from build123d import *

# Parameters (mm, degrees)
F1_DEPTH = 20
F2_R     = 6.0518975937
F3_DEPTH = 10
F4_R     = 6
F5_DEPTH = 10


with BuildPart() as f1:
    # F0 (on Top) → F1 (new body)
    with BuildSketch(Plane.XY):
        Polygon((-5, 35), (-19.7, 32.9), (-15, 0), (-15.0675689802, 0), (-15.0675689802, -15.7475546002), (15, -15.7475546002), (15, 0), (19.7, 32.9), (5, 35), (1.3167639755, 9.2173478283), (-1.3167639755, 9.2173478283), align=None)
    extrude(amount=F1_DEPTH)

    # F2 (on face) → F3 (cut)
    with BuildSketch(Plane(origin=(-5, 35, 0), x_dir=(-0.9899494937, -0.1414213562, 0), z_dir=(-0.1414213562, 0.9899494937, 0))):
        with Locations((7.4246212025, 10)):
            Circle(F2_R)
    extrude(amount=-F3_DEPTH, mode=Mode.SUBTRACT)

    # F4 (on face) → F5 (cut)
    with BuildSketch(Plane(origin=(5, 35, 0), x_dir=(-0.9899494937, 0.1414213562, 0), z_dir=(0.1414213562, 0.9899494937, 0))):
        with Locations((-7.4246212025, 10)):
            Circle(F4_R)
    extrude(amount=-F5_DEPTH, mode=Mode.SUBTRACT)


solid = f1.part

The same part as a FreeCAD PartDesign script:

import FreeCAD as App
import Part
import Sketcher
from FreeCAD import Vector


def add_polygon(sketch, points):
    """Adds a closed chain of lines whose ends are joined by coincident constraints."""
    first, n = sketch.GeometryCount, len(points)
    for a, b in zip(points, points[1:] + points[:1]):
        sketch.addGeometry(Part.LineSegment(App.Vector(*a, 0), App.Vector(*b, 0)), False)
    for i in range(n):
        sketch.addConstraint(Sketcher.Constraint("Coincident", first + i, 2, first + (i + 1) % n, 1))

doc = App.newDocument("Part")
params = doc.addObject("Spreadsheet::Sheet", "Params")
for row, (alias, value) in enumerate([
    ("pad1_length", "20 mm"),
    ("pocket1_length", "10 mm"),
    ("sketch3_diameter", "12 mm"),
    ("pocket2_length", "10 mm"),
], start=1):
    params.set(f"A{row}", alias)
    params.set(f"B{row}", "=" + value)
    params.setAlias(f"B{row}", alias)

body = doc.addObject("PartDesign::Body", "Body")

# Sketch on XY plane
sketch1 = doc.addObject("Sketcher::SketchObject", "Sketch")
body.addObject(sketch1)
sketch1.AttachmentSupport = (doc.XY_Plane, [""])
sketch1.MapMode = "FlatFace"
add_polygon(sketch1, [(-5, 35), (-19.7, 32.9), (-15, 0), (-15.07, 0), (-15.07, -15.75), (15, -15.75), (15, 0), (19.7, 32.9), (5, 35), (1.32, 9.22), (-1.32, 9.22)])  # lines 0-10
sketch1.addConstraint(Sketcher.Constraint("Horizontal", 2))
sketch1.addConstraint(Sketcher.Constraint("Vertical", 3))
sketch1.addConstraint(Sketcher.Constraint("Horizontal", 4))
sketch1.addConstraint(Sketcher.Constraint("Vertical", 5))
sketch1.addConstraint(Sketcher.Constraint("Horizontal", 9))
sketch1.addConstraint(Sketcher.Constraint("Symmetric", 1, 2, 5, 2, -1, 1))
sketch1.addConstraint(Sketcher.Constraint("Symmetric", 0, 2, 6, 2, -2))
sketch1.addConstraint(Sketcher.Constraint("Symmetric", 7, 2, 10, 2, -2))
sketch1.addConstraint(Sketcher.Constraint("PointOnObject", 1, 2, -1))
sketch1.addConstraint(Sketcher.Constraint("Perpendicular", 0, 1))
sketch1.addConstraint(Sketcher.Constraint("Perpendicular", 7, 8))
sketch1.addConstraint(Sketcher.Constraint("Parallel", 1, 10))
sketch1.addConstraint(Sketcher.Constraint("DistanceX", 1, 2, -1, 1, 15.0))
sketch1.addConstraint(Sketcher.Constraint("DistanceX", -1, 1, 7, 2, 5.0))
sketch1.addConstraint(Sketcher.Constraint("DistanceY", -1, 1, 7, 2, 35.0))
sketch1.addConstraint(Sketcher.Constraint("DistanceX", 0, 2, -1, 1, 19.7))
sketch1.addConstraint(Sketcher.Constraint("DistanceX", 2, 2, 2, 1, 0.067569))
sketch1.addConstraint(Sketcher.Constraint("Distance", 8, 26.044412))
sketch1.addConstraint(Sketcher.Constraint("DistanceY", 3, 2, 3, 1, 15.747555))
pad1 = doc.addObject("PartDesign::Pad", "Pad")
body.addObject(pad1)
pad1.Profile = sketch1
pad1.setExpression("Length", "Params.pad1_length")

# Sketch on an angled plane
sketch2 = doc.addObject("Sketcher::SketchObject", "Sketch001")
body.addObject(sketch2)
sketch2.Placement = App.Placement(Vector(-5, 35, 0), App.Rotation(Vector(-0.989949494, -0.141421356, 0), Vector(0, 0, 1.000000001), Vector(-0.141421356, 0.989949494, 0), "ZXY"))
sketch2.addGeometry(Part.Circle(Vector(7, 10, 0), Vector(0, 0, 1), 6), False)
sketch2.addConstraint(Sketcher.Constraint("DistanceY", -1, 1, 0, 3, 10.0))
sketch2.addConstraint(Sketcher.Constraint("Diameter", 0, 12.103795))
sketch2.addConstraint(Sketcher.Constraint("DistanceX", -1, 1, 0, 3, 7.424621))
pocket1 = doc.addObject("PartDesign::Pocket", "Pocket")
body.addObject(pocket1)
pocket1.Profile = sketch2
pocket1.setExpression("Length", "Params.pocket1_length")

# Sketch on an angled plane
sketch3 = doc.addObject("Sketcher::SketchObject", "Sketch002")
body.addObject(sketch3)
sketch3.Placement = App.Placement(Vector(5, 35, 0), App.Rotation(Vector(-0.989949494, 0.141421356, 0), Vector(0, 0, 1.000000001), Vector(0.141421356, 0.989949494, 0), "ZXY"))
sketch3.addGeometry(Part.Circle(Vector(-7, 10, 0), Vector(0, 0, 1), 6), False)
sketch3.addConstraint(Sketcher.Constraint("Diameter", 0, 12.0))
sketch3.addConstraint(Sketcher.Constraint("DistanceY", -1, 1, 0, 3, 10.0))
sketch3.addConstraint(Sketcher.Constraint("DistanceX", 0, 3, -1, 1, 7.424621))
sketch3.setExpression("Constraints[0]", "Params.sketch3_diameter")
pocket2 = doc.addObject("PartDesign::Pocket", "Pocket001")
body.addObject(pocket2)
pocket2.Profile = sketch3
pocket2.setExpression("Length", "Params.pocket2_length")

doc.recompute()
